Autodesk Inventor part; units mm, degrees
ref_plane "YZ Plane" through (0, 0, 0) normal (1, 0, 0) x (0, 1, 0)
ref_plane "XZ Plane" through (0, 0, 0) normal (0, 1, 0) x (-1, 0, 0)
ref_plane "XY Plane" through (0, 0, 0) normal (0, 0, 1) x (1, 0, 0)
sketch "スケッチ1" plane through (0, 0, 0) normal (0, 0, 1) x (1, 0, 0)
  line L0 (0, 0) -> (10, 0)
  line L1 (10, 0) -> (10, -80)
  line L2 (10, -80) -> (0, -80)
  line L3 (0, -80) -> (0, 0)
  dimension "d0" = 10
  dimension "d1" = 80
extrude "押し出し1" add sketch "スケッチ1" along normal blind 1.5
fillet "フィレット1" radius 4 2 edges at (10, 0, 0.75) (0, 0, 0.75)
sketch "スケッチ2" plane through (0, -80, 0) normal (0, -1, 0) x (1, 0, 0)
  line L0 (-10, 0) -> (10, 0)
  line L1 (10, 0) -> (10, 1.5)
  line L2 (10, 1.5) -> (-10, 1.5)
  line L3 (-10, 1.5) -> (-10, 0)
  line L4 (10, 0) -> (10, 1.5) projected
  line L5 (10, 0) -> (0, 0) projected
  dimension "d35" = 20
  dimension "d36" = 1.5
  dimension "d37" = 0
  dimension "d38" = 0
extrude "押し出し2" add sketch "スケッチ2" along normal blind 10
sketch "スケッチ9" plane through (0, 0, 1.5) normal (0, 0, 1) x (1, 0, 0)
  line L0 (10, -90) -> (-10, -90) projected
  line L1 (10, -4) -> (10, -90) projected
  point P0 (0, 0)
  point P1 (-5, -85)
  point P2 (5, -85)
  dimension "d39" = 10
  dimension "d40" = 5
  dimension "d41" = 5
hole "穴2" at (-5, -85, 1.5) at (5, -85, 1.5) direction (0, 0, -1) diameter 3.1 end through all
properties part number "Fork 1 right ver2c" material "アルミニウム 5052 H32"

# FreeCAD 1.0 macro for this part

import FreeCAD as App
import Part
import Sketcher
Q = App.Units.Quantity


def edges_at(feature, points):
    """Names of the edges that pass closest to the given points."""
    edges = feature.Shape.Edges
    near = lambda p: min(range(len(edges)), key=lambda i: edges[i].distToShape(Part.Vertex(*p))[0])
    return sorted({f"Edge{near(p) + 1}" for p in points})

doc = App.newDocument("Part")
body = doc.addObject("PartDesign::Body", "Body")

# Sketch on XY plane
sketch1 = body.newObject("Sketcher::SketchObject", "Sketch")
sketch1.AttachmentSupport = (doc.getObject("XY_Plane"), [""])
sketch1.MapMode = "FlatFace"
sketch1.addGeometry([
    Part.LineSegment(App.Vector(10, 0, 0), App.Vector(0, 0, 0)),
    Part.LineSegment(App.Vector(0, 0, 0), App.Vector(0, -80, 0)),
    Part.LineSegment(App.Vector(0, -80, 0), App.Vector(10, -80, 0)),
    Part.LineSegment(App.Vector(10, -80, 0), App.Vector(10, 0, 0)),
], False)
sketch1.addConstraint([
    Sketcher.Constraint("Coincident", 0, 2, 1, 1),
    Sketcher.Constraint("Coincident", 1, 2, 2, 1),
    Sketcher.Constraint("Coincident", 2, 2, 3, 1),
    Sketcher.Constraint("Coincident", 3, 2, 0, 1),
    Sketcher.Constraint("Horizontal", 0),
    Sketcher.Constraint("Vertical", 1),
    Sketcher.Constraint("Horizontal", 2),
    Sketcher.Constraint("Vertical", 3),
    Sketcher.Constraint("Coincident", 0, 2, -1, 1),
    Sketcher.Constraint("DistanceX", 0, 2, 0, 1, Q("10 mm")),
    Sketcher.Constraint("DistanceY", 1, 2, 1, 1, Q("80 mm")),
])
pad1 = body.newObject("PartDesign::Pad", "Pad")
pad1.Profile = sketch1
pad1.Length = 1.5
doc.recompute()

fillet = body.newObject("PartDesign::Fillet", "Fillet")
fillet.Base = (pad1, edges_at(pad1, [(10, 0, 0.75), (0, 0, 0.75)]))
fillet.Radius = 4

# Sketch on XZ plane
sketch2 = body.newObject("Sketcher::SketchObject", "Sketch001")
sketch2.AttachmentSupport = (doc.getObject("XZ_Plane"), [""])
sketch2.MapMode = "FlatFace"
sketch2.AttachmentOffset = App.Placement(App.Vector(0, 0, 80), App.Rotation())
sketch2.addGeometry([
    Part.LineSegment(App.Vector(-10, 1.5, 0), App.Vector(-10, 0, 0)),
    Part.LineSegment(App.Vector(-10, 0, 0), App.Vector(10, 0, 0)),
    Part.LineSegment(App.Vector(10, 0, 0), App.Vector(10, 1.5, 0)),
    Part.LineSegment(App.Vector(10, 1.5, 0), App.Vector(-10, 1.5, 0)),
], False)
sketch2.addConstraint([
    Sketcher.Constraint("Coincident", 0, 2, 1, 1),
    Sketcher.Constraint("Coincident", 1, 2, 2, 1),
    Sketcher.Constraint("Coincident", 2, 2, 3, 1),
    Sketcher.Constraint("Coincident", 3, 2, 0, 1),
    Sketcher.Constraint("Vertical", 0),
    Sketcher.Constraint("Horizontal", 1),
    Sketcher.Constraint("Vertical", 2),
    Sketcher.Constraint("Horizontal", 3),
    Sketcher.Constraint("Symmetric", 0, 2, 1, 2, -1, 1),
    Sketcher.Constraint("DistanceX", 1, 1, 1, 2, Q("20 mm")),
    Sketcher.Constraint("DistanceY", 0, 2, 0, 1, Q("1.5 mm")),
])
pad2 = body.newObject("PartDesign::Pad", "Pad001")
pad2.Profile = sketch2
pad2.Length = 10

# Sketch on XY plane
sketch3 = body.newObject("Sketcher::SketchObject", "Sketch002")
sketch3.AttachmentSupport = (doc.getObject("XY_Plane"), [""])
sketch3.MapMode = "FlatFace"
sketch3.AttachmentOffset = App.Placement(App.Vector(0, 0, 1.5), App.Rotation())
sketch3.addGeometry([
    Part.Circle(App.Vector(-5, -85, 0), App.Vector(0, 0, 1), 1.6),
    Part.Circle(App.Vector(5, -85, 0), App.Vector(0, 0, 1), 1.6),
], False)
sketch3.addConstraint([
    Sketcher.Constraint("Equal", 0, 1),
    Sketcher.Constraint("Symmetric", 0, 3, 1, 3, -2),
    Sketcher.Constraint("Diameter", 0, Q("3.1 mm")),
    Sketcher.Constraint("DistanceX", 0, 3, -1, 1, Q("5 mm")),
    Sketcher.Constraint("DistanceY", 0, 3, -1, 1, Q("85 mm")),
])
doc.recompute()
hole = body.newObject("PartDesign::Hole", "Hole")
hole.Profile = sketch3
hole.ThreadType = "None"
hole.Diameter = 3.1
hole.DepthType = "ThroughAll"

doc.recompute()
